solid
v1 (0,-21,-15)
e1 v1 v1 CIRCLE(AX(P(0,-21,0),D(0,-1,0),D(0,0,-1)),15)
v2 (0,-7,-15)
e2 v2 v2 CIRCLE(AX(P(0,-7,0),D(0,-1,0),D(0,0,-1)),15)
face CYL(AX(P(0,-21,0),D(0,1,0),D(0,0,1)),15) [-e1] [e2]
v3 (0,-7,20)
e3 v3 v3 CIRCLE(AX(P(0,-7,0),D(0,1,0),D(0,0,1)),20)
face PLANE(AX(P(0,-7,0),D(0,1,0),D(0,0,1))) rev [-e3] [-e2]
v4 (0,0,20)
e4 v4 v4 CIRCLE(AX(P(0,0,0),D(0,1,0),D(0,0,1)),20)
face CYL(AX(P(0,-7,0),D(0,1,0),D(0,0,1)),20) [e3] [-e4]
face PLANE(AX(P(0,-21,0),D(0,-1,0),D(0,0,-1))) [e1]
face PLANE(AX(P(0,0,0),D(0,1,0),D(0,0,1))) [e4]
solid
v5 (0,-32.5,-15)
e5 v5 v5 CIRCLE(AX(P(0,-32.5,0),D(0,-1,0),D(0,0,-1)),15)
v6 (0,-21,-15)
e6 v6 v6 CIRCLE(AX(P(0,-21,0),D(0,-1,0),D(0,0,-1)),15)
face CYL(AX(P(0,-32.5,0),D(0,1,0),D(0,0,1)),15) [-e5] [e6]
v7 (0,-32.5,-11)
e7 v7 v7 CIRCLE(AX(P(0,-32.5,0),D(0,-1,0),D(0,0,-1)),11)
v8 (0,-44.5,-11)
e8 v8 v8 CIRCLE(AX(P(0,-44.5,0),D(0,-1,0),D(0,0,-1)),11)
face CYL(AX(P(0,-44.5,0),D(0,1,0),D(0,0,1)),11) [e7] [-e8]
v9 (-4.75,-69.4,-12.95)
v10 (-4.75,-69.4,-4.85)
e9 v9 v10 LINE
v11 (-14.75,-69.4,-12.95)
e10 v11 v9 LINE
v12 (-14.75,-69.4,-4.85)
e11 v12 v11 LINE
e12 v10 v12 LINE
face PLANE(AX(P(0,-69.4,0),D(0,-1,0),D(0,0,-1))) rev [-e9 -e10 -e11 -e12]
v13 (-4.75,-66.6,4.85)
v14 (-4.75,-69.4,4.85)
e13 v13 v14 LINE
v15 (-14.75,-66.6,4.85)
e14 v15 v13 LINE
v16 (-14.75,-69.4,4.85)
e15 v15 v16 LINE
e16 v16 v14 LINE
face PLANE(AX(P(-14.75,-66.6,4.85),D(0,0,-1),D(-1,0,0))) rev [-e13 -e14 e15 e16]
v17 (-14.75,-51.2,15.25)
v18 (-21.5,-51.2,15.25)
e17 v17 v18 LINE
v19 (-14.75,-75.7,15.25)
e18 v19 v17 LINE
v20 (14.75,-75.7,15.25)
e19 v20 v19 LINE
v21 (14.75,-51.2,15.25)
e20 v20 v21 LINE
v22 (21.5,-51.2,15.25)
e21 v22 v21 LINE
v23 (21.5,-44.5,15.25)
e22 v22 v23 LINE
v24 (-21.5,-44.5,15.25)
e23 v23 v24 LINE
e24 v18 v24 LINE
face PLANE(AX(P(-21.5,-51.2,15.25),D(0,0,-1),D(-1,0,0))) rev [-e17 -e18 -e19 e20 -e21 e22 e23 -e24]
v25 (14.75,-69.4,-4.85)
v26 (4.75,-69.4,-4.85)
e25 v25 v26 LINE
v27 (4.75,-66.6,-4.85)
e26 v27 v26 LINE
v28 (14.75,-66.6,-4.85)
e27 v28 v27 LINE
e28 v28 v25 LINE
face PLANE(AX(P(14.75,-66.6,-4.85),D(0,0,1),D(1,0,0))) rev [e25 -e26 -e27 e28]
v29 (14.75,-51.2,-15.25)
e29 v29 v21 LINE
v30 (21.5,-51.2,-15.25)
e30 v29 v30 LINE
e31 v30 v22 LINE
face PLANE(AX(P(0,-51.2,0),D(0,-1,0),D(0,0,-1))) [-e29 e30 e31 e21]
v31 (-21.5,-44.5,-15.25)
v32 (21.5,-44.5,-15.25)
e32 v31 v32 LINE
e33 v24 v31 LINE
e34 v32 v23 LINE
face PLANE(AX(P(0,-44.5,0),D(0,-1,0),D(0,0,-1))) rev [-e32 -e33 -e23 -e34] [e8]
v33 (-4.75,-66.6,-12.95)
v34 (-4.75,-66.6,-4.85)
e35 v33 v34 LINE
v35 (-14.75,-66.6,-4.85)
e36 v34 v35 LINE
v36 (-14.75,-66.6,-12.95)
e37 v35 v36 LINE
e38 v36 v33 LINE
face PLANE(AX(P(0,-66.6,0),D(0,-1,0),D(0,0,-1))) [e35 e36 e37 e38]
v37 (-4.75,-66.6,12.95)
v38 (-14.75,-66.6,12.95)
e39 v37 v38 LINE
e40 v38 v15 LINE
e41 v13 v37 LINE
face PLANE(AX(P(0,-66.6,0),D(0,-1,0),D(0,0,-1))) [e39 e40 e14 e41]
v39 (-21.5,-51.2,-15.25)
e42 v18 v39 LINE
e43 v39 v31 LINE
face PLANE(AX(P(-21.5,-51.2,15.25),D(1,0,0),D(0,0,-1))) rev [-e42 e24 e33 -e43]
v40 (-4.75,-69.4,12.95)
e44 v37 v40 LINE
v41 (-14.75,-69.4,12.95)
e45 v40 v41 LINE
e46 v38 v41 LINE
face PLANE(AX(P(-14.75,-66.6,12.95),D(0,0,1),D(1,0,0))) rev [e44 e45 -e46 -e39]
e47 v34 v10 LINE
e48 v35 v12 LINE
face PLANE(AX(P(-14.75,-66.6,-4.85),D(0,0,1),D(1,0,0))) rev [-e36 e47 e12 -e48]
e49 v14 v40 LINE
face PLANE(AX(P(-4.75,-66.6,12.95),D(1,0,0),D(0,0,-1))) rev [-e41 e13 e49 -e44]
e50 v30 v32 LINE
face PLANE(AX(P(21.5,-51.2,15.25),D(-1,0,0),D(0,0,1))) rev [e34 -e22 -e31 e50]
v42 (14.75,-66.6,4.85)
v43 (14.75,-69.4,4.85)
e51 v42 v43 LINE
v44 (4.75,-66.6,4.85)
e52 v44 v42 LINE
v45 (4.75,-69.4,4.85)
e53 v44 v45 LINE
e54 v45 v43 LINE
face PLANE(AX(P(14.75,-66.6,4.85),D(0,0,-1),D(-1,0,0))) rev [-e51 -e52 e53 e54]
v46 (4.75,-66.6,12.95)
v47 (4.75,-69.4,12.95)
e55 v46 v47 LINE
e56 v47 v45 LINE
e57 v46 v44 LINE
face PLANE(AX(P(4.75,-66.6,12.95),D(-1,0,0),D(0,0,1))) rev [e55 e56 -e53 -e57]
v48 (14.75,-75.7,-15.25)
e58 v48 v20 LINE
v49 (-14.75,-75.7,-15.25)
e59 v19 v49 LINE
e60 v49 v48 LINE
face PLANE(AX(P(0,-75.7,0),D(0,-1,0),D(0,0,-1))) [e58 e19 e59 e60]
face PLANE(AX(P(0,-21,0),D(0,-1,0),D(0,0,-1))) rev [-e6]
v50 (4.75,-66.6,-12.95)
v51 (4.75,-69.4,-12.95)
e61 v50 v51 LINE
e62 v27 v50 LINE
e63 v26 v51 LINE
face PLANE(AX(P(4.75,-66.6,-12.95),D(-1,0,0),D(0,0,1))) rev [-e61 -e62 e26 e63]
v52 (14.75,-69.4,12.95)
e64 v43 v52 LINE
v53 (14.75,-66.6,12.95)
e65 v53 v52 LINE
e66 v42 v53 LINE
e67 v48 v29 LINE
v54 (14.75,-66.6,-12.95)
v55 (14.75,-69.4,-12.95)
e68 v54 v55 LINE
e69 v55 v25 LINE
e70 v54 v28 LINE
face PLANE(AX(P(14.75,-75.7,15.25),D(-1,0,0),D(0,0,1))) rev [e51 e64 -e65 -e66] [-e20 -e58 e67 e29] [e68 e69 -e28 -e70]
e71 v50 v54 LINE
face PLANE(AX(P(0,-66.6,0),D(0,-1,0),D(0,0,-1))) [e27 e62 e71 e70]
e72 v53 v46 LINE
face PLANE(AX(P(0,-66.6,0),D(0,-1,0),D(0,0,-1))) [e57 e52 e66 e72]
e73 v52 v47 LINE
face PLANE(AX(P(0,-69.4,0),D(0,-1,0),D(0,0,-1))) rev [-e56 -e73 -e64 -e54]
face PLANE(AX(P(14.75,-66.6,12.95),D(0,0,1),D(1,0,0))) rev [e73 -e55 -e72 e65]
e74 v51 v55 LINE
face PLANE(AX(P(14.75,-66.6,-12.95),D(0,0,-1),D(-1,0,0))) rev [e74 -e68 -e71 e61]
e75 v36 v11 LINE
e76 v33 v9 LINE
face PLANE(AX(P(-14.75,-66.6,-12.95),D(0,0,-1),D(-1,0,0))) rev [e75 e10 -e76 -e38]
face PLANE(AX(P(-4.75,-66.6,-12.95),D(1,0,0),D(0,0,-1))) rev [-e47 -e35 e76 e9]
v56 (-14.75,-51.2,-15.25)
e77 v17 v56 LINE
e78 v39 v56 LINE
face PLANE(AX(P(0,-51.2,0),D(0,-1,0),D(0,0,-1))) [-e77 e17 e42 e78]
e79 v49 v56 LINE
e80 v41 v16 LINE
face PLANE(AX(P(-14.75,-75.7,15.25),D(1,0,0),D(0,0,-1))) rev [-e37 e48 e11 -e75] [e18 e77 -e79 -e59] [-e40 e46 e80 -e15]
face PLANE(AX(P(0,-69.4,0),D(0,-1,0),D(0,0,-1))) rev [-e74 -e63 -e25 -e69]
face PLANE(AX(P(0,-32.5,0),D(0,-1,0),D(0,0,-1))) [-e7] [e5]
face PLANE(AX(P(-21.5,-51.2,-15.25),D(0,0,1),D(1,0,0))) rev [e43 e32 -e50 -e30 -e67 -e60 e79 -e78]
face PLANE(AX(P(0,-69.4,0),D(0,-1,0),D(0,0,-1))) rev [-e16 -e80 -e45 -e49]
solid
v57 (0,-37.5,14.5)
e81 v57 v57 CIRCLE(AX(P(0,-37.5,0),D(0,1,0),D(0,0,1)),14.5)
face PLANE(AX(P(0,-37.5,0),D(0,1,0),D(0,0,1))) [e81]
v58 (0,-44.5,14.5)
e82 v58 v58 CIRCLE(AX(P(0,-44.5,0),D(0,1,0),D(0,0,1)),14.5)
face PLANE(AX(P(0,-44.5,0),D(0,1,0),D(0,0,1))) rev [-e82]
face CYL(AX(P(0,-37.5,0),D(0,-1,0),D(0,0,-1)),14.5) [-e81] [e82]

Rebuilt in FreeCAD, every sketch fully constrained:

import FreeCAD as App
import Part
import Sketcher
from FreeCAD import Vector
Q = App.Units.Quantity

doc = App.newDocument("Part")
params = doc.addObject("Spreadsheet::Sheet", "Params")
for row, (alias, value) in enumerate([
    ("sketch1_diameter", "40 mm"),
    ("pad1_length", "7 mm"),
    ("sketch2_diameter", "30 mm"),
    ("pad2_length", "14 mm"),
    ("sketch3_diameter", "30 mm"),
    ("pad3_length", "11.5 mm"),
    ("sketch4_diameter", "22 mm"),
    ("pad4_length", "12 mm"),
    ("sketch5_width", "43 mm"),
    ("sketch5_height", "30.5 mm"),
    ("pad5_length", "6.7 mm"),
    ("sketch6_width", "29.5 mm"),
    ("sketch6_height", "30.5 mm"),
    ("pad6_length", "24.5 mm"),
    ("sketch7_width", "10 mm"),
    ("sketch7_height", "8.1 mm"),
    ("pocket1_length", "2.8 mm"),
    ("sketch8_diameter", "29 mm"),
    ("pad7_length", "7 mm"),
], start=1):
    params.set(f"A{row}", alias)
    params.set(f"B{row}", "=" + value)
    params.setAlias(f"B{row}", alias)

body = doc.addObject("PartDesign::Body", "Body")

# Sketch on XZ plane
sketch1 = body.newObject("Sketcher::SketchObject", "Sketch")
sketch1.AttachmentSupport = (doc.getObject("XZ_Plane"), [""])
sketch1.MapMode = "FlatFace"
sketch1.addGeometry(Part.Circle(Vector(0, 0, 0), Vector(0, 0, 1), 20), False)
sketch1.addConstraint(Sketcher.Constraint("Coincident", 0, 3, -1, 1))
sketch1.addConstraint(Sketcher.Constraint("Diameter", 0, Q("40 mm")))
sketch1.setExpression("Constraints[1]", "Params.sketch1_diameter")
pad1 = body.newObject("PartDesign::Pad", "Pad")
pad1.Profile = sketch1
pad1.setExpression("Length", "Params.pad1_length")

# Sketch on XZ plane
sketch2 = body.newObject("Sketcher::SketchObject", "Sketch001")
sketch2.AttachmentSupport = (doc.getObject("XZ_Plane"), [""])
sketch2.MapMode = "FlatFace"
sketch2.AttachmentOffset = App.Placement(Vector(0, 0, 7), App.Rotation())
sketch2.addGeometry(Part.Circle(Vector(0, 0, 0), Vector(0, 0, 1), 15), False)
sketch2.addConstraint(Sketcher.Constraint("Coincident", 0, 3, -1, 1))
sketch2.addConstraint(Sketcher.Constraint("Diameter", 0, Q("30 mm")))
sketch2.setExpression("Constraints[1]", "Params.sketch2_diameter")
pad2 = body.newObject("PartDesign::Pad", "Pad001")
pad2.Profile = sketch2
pad2.setExpression("Length", "Params.pad2_length")
body2 = doc.addObject("PartDesign::Body", "Body001")

# Sketch on XZ plane
sketch3 = body2.newObject("Sketcher::SketchObject", "Sketch002")
sketch3.AttachmentSupport = (doc.getObject("XZ_Plane001"), [""])
sketch3.MapMode = "FlatFace"
sketch3.AttachmentOffset = App.Placement(Vector(0, 0, 21), App.Rotation())
sketch3.addGeometry(Part.Circle(Vector(0, 0, 0), Vector(0, 0, 1), 15), False)
sketch3.addConstraint(Sketcher.Constraint("Coincident", 0, 3, -1, 1))
sketch3.addConstraint(Sketcher.Constraint("Diameter", 0, Q("30 mm")))
sketch3.setExpression("Constraints[1]", "Params.sketch3_diameter")
pad3 = body2.newObject("PartDesign::Pad", "Pad002")
pad3.Profile = sketch3
pad3.setExpression("Length", "Params.pad3_length")

# Sketch on XZ plane
sketch4 = body2.newObject("Sketcher::SketchObject", "Sketch003")
sketch4.AttachmentSupport = (doc.getObject("XZ_Plane001"), [""])
sketch4.MapMode = "FlatFace"
sketch4.AttachmentOffset = App.Placement(Vector(0, 0, 32.5), App.Rotation())
sketch4.addGeometry(Part.Circle(Vector(0, 0, 0), Vector(0, 0, 1), 11), False)
sketch4.addConstraint(Sketcher.Constraint("Coincident", 0, 3, -1, 1))
sketch4.addConstraint(Sketcher.Constraint("Diameter", 0, Q("22 mm")))
sketch4.setExpression("Constraints[1]", "Params.sketch4_diameter")
pad4 = body2.newObject("PartDesign::Pad", "Pad003")
pad4.Profile = sketch4
pad4.setExpression("Length", "Params.pad4_length")

# Sketch on XZ plane
sketch5 = body2.newObject("Sketcher::SketchObject", "Sketch004")
sketch5.AttachmentSupport = (doc.getObject("XZ_Plane001"), [""])
sketch5.MapMode = "FlatFace"
sketch5.AttachmentOffset = App.Placement(Vector(0, 0, 44.5), App.Rotation())
sketch5.addGeometry(Part.LineSegment(Vector(-22, 15, 0), Vector(-22, -15, 0)), False)
sketch5.addGeometry(Part.LineSegment(Vector(-22, -15, 0), Vector(22, -15, 0)), False)
sketch5.addGeometry(Part.LineSegment(Vector(22, -15, 0), Vector(22, 15, 0)), False)
sketch5.addGeometry(Part.LineSegment(Vector(22, 15, 0), Vector(-22, 15, 0)), False)
sketch5.addConstraint(Sketcher.Constraint("Coincident", 0, 2, 1, 1))
sketch5.addConstraint(Sketcher.Constraint("Coincident", 1, 2, 2, 1))
sketch5.addConstraint(Sketcher.Constraint("Coincident", 2, 2, 3, 1))
sketch5.addConstraint(Sketcher.Constraint("Coincident", 3, 2, 0, 1))
sketch5.addConstraint(Sketcher.Constraint("Vertical", 0))
sketch5.addConstraint(Sketcher.Constraint("Horizontal", 1))
sketch5.addConstraint(Sketcher.Constraint("Vertical", 2))
sketch5.addConstraint(Sketcher.Constraint("Horizontal", 3))
sketch5.addConstraint(Sketcher.Constraint("Symmetric", 0, 2, 2, 2, -1, 1))
sketch5.addConstraint(Sketcher.Constraint("DistanceX", 1, 1, 1, 2, Q("43 mm")))
sketch5.addConstraint(Sketcher.Constraint("DistanceY", 0, 2, 0, 1, Q("30.5 mm")))
sketch5.setExpression("Constraints[9]", "Params.sketch5_width")
sketch5.setExpression("Constraints[10]", "Params.sketch5_height")
pad5 = body2.newObject("PartDesign::Pad", "Pad004")
pad5.Profile = sketch5
pad5.setExpression("Length", "Params.pad5_length")

# Sketch on XZ plane
sketch6 = body2.newObject("Sketcher::SketchObject", "Sketch005")
sketch6.AttachmentSupport = (doc.getObject("XZ_Plane001"), [""])
sketch6.MapMode = "FlatFace"
sketch6.AttachmentOffset = App.Placement(Vector(0, 0, 51.2), App.Rotation())
sketch6.addGeometry(Part.LineSegment(Vector(-15, 15, 0), Vector(-15, -15, 0)), False)
sketch6.addGeometry(Part.LineSegment(Vector(-15, -15, 0), Vector(15, -15, 0)), False)
sketch6.addGeometry(Part.LineSegment(Vector(15, -15, 0), Vector(15, 15, 0)), False)
sketch6.addGeometry(Part.LineSegment(Vector(15, 15, 0), Vector(-15, 15, 0)), False)
sketch6.addConstraint(Sketcher.Constraint("Coincident", 0, 2, 1, 1))
sketch6.addConstraint(Sketcher.Constraint("Coincident", 1, 2, 2, 1))
sketch6.addConstraint(Sketcher.Constraint("Coincident", 2, 2, 3, 1))
sketch6.addConstraint(Sketcher.Constraint("Coincident", 3, 2, 0, 1))
sketch6.addConstraint(Sketcher.Constraint("Vertical", 0))
sketch6.addConstraint(Sketcher.Constraint("Horizontal", 1))
sketch6.addConstraint(Sketcher.Constraint("Vertical", 2))
sketch6.addConstraint(Sketcher.Constraint("Horizontal", 3))
sketch6.addConstraint(Sketcher.Constraint("Symmetric", 0, 2, 2, 2, -1, 1))
sketch6.addConstraint(Sketcher.Constraint("DistanceX", 1, 1, 1, 2, Q("29.5 mm")))
sketch6.addConstraint(Sketcher.Constraint("DistanceY", 0, 2, 0, 1, Q("30.5 mm")))
sketch6.setExpression("Constraints[9]", "Params.sketch6_width")
sketch6.setExpression("Constraints[10]", "Params.sketch6_height")
pad6 = body2.newObject("PartDesign::Pad", "Pad005")
pad6.Profile = sketch6
pad6.setExpression("Length", "Params.pad6_length")

# Sketch on XZ plane
sketch7 = body2.newObject("Sketcher::SketchObject", "Sketch006")
sketch7.AttachmentSupport = (doc.getObject("XZ_Plane001"), [""])
sketch7.MapMode = "FlatFace"
sketch7.AttachmentOffset = App.Placement(Vector(0, 0, 69.4), App.Rotation())
sketch7.addGeometry(Part.LineSegment(Vector(-15, 13, 0), Vector(-15, 5, 0)), False)
sketch7.addGeometry(Part.LineSegment(Vector(-15, 5, 0), Vector(-5, 5, 0)), False)
sketch7.addGeometry(Part.LineSegment(Vector(-5, 5, 0), Vector(-5, 13, 0)), False)
sketch7.addGeometry(Part.LineSegment(Vector(-5, 13, 0), Vector(-15, 13, 0)), False)
sketch7.addGeometry(Part.LineSegment(Vector(5, 13, 0), Vector(5, 5, 0)), False)
sketch7.addGeometry(Part.LineSegment(Vector(5, 5, 0), Vector(15, 5, 0)), False)
sketch7.addGeometry(Part.LineSegment(Vector(15, 5, 0), Vector(15, 13, 0)), False)
sketch7.addGeometry(Part.LineSegment(Vector(15, 13, 0), Vector(5, 13, 0)), False)
sketch7.addGeometry(Part.LineSegment(Vector(5, -5, 0), Vector(5, -13, 0)), False)
sketch7.addGeometry(Part.LineSegment(Vector(5, -13, 0), Vector(15, -13, 0)), False)
sketch7.addGeometry(Part.LineSegment(Vector(15, -13, 0), Vector(15, -5, 0)), False)
sketch7.addGeometry(Part.LineSegment(Vector(15, -5, 0), Vector(5, -5, 0)), False)
sketch7.addGeometry(Part.LineSegment(Vector(-15, -5, 0), Vector(-15, -13, 0)), False)
sketch7.addGeometry(Part.LineSegment(Vector(-15, -13, 0), Vector(-5, -13, 0)), False)
sketch7.addGeometry(Part.LineSegment(Vector(-5, -13, 0), Vector(-5, -5, 0)), False)
sketch7.addGeometry(Part.LineSegment(Vector(-5, -5, 0), Vector(-15, -5, 0)), False)
sketch7.addConstraint(Sketcher.Constraint("Coincident", 0, 2, 1, 1))
sketch7.addConstraint(Sketcher.Constraint("Coincident", 1, 2, 2, 1))
sketch7.addConstraint(Sketcher.Constraint("Coincident", 2, 2, 3, 1))
sketch7.addConstraint(Sketcher.Constraint("Coincident", 3, 2, 0, 1))
sketch7.addConstraint(Sketcher.Constraint("Coincident", 4, 2, 5, 1))
sketch7.addConstraint(Sketcher.Constraint("Coincident", 5, 2, 6, 1))
sketch7.addConstraint(Sketcher.Constraint("Coincident", 6, 2, 7, 1))
sketch7.addConstraint(Sketcher.Constraint("Coincident", 7, 2, 4, 1))
sketch7.addConstraint(Sketcher.Constraint("Coincident", 8, 2, 9, 1))
sketch7.addConstraint(Sketcher.Constraint("Coincident", 9, 2, 10, 1))
sketch7.addConstraint(Sketcher.Constraint("Coincident", 10, 2, 11, 1))
sketch7.addConstraint(Sketcher.Constraint("Coincident", 11, 2, 8, 1))
sketch7.addConstraint(Sketcher.Constraint("Coincident", 12, 2, 13, 1))
sketch7.addConstraint(Sketcher.Constraint("Coincident", 13, 2, 14, 1))
sketch7.addConstraint(Sketcher.Constraint("Coincident", 14, 2, 15, 1))
sketch7.addConstraint(Sketcher.Constraint("Coincident", 15, 2, 12, 1))
sketch7.addConstraint(Sketcher.Constraint("Vertical", 0))
sketch7.addConstraint(Sketcher.Constraint("Horizontal", 1))
sketch7.addConstraint(Sketcher.Constraint("Vertical", 2))
sketch7.addConstraint(Sketcher.Constraint("Horizontal", 3))
sketch7.addConstraint(Sketcher.Constraint("Vertical", 4))
sketch7.addConstraint(Sketcher.Constraint("Horizontal", 5))
sketch7.addConstraint(Sketcher.Constraint("Vertical", 6))
sketch7.addConstraint(Sketcher.Constraint("Horizontal", 7))
sketch7.addConstraint(Sketcher.Constraint("Vertical", 8))
sketch7.addConstraint(Sketcher.Constraint("Horizontal", 9))
sketch7.addConstraint(Sketcher.Constraint("Vertical", 10))
sketch7.addConstraint(Sketcher.Constraint("Horizontal", 11))
sketch7.addConstraint(Sketcher.Constraint("Vertical", 12))
sketch7.addConstraint(Sketcher.Constraint("Horizontal", 13))
sketch7.addConstraint(Sketcher.Constraint("Vertical", 14))
sketch7.addConstraint(Sketcher.Constraint("Horizontal", 15))
sketch7.addConstraint(Sketcher.Constraint("Symmetric", 2, 2, 8, 2, -1, 1))
sketch7.addConstraint(Sketcher.Constraint("Symmetric", 0, 2, 10, 2, -1, 1))
sketch7.addConstraint(Sketcher.Constraint("Symmetric", 6, 2, 12, 2, -1, 1))
sketch7.addConstraint(Sketcher.Constraint("Symmetric", 4, 2, 14, 2, -1, 1))
sketch7.addConstraint(Sketcher.Constraint("Symmetric", 1, 2, 4, 2, -2))
sketch7.addConstraint(Sketcher.Constraint("Symmetric", 3, 2, 6, 2, -2))
sketch7.addConstraint(Sketcher.Constraint("DistanceX", 1, 1, 1, 2, Q("10 mm")))
sketch7.addConstraint(Sketcher.Constraint("DistanceY", 0, 2, 0, 1, Q("8.1 mm")))
sketch7.addConstraint(Sketcher.Constraint("DistanceX", 1, 2, 4, 2, Q("9.5 mm")))
sketch7.addConstraint(Sketcher.Constraint("DistanceY", 8, 2, 4, 2, Q("17.8 mm")))
sketch7.setExpression("Constraints[38]", "Params.sketch7_width")
sketch7.setExpression("Constraints[39]", "Params.sketch7_height")
pocket1 = body2.newObject("PartDesign::Pocket", "Pocket")
pocket1.Profile = sketch7
pocket1.setExpression("Length", "Params.pocket1_length")
body3 = doc.addObject("PartDesign::Body", "Body002")

# Sketch on XZ plane
sketch8 = body3.newObject("Sketcher::SketchObject", "Sketch007")
sketch8.AttachmentSupport = (doc.getObject("XZ_Plane002"), [""])
sketch8.MapMode = "FlatFace"
sketch8.AttachmentOffset = App.Placement(Vector(0, 0, 44.5), App.Rotation())
sketch8.addGeometry(Part.Circle(Vector(0, 0, 0), Vector(0, 0, 1), 14), False)
sketch8.addConstraint(Sketcher.Constraint("Coincident", 0, 3, -1, 1))
sketch8.addConstraint(Sketcher.Constraint("Diameter", 0, Q("29 mm")))
sketch8.setExpression("Constraints[1]", "Params.sketch8_diameter")
pad7 = body3.newObject("PartDesign::Pad", "Pad006")
pad7.Profile = sketch8
pad7.setExpression("Length", "Params.pad7_length")
pad7.Reversed = True

doc.recompute()
